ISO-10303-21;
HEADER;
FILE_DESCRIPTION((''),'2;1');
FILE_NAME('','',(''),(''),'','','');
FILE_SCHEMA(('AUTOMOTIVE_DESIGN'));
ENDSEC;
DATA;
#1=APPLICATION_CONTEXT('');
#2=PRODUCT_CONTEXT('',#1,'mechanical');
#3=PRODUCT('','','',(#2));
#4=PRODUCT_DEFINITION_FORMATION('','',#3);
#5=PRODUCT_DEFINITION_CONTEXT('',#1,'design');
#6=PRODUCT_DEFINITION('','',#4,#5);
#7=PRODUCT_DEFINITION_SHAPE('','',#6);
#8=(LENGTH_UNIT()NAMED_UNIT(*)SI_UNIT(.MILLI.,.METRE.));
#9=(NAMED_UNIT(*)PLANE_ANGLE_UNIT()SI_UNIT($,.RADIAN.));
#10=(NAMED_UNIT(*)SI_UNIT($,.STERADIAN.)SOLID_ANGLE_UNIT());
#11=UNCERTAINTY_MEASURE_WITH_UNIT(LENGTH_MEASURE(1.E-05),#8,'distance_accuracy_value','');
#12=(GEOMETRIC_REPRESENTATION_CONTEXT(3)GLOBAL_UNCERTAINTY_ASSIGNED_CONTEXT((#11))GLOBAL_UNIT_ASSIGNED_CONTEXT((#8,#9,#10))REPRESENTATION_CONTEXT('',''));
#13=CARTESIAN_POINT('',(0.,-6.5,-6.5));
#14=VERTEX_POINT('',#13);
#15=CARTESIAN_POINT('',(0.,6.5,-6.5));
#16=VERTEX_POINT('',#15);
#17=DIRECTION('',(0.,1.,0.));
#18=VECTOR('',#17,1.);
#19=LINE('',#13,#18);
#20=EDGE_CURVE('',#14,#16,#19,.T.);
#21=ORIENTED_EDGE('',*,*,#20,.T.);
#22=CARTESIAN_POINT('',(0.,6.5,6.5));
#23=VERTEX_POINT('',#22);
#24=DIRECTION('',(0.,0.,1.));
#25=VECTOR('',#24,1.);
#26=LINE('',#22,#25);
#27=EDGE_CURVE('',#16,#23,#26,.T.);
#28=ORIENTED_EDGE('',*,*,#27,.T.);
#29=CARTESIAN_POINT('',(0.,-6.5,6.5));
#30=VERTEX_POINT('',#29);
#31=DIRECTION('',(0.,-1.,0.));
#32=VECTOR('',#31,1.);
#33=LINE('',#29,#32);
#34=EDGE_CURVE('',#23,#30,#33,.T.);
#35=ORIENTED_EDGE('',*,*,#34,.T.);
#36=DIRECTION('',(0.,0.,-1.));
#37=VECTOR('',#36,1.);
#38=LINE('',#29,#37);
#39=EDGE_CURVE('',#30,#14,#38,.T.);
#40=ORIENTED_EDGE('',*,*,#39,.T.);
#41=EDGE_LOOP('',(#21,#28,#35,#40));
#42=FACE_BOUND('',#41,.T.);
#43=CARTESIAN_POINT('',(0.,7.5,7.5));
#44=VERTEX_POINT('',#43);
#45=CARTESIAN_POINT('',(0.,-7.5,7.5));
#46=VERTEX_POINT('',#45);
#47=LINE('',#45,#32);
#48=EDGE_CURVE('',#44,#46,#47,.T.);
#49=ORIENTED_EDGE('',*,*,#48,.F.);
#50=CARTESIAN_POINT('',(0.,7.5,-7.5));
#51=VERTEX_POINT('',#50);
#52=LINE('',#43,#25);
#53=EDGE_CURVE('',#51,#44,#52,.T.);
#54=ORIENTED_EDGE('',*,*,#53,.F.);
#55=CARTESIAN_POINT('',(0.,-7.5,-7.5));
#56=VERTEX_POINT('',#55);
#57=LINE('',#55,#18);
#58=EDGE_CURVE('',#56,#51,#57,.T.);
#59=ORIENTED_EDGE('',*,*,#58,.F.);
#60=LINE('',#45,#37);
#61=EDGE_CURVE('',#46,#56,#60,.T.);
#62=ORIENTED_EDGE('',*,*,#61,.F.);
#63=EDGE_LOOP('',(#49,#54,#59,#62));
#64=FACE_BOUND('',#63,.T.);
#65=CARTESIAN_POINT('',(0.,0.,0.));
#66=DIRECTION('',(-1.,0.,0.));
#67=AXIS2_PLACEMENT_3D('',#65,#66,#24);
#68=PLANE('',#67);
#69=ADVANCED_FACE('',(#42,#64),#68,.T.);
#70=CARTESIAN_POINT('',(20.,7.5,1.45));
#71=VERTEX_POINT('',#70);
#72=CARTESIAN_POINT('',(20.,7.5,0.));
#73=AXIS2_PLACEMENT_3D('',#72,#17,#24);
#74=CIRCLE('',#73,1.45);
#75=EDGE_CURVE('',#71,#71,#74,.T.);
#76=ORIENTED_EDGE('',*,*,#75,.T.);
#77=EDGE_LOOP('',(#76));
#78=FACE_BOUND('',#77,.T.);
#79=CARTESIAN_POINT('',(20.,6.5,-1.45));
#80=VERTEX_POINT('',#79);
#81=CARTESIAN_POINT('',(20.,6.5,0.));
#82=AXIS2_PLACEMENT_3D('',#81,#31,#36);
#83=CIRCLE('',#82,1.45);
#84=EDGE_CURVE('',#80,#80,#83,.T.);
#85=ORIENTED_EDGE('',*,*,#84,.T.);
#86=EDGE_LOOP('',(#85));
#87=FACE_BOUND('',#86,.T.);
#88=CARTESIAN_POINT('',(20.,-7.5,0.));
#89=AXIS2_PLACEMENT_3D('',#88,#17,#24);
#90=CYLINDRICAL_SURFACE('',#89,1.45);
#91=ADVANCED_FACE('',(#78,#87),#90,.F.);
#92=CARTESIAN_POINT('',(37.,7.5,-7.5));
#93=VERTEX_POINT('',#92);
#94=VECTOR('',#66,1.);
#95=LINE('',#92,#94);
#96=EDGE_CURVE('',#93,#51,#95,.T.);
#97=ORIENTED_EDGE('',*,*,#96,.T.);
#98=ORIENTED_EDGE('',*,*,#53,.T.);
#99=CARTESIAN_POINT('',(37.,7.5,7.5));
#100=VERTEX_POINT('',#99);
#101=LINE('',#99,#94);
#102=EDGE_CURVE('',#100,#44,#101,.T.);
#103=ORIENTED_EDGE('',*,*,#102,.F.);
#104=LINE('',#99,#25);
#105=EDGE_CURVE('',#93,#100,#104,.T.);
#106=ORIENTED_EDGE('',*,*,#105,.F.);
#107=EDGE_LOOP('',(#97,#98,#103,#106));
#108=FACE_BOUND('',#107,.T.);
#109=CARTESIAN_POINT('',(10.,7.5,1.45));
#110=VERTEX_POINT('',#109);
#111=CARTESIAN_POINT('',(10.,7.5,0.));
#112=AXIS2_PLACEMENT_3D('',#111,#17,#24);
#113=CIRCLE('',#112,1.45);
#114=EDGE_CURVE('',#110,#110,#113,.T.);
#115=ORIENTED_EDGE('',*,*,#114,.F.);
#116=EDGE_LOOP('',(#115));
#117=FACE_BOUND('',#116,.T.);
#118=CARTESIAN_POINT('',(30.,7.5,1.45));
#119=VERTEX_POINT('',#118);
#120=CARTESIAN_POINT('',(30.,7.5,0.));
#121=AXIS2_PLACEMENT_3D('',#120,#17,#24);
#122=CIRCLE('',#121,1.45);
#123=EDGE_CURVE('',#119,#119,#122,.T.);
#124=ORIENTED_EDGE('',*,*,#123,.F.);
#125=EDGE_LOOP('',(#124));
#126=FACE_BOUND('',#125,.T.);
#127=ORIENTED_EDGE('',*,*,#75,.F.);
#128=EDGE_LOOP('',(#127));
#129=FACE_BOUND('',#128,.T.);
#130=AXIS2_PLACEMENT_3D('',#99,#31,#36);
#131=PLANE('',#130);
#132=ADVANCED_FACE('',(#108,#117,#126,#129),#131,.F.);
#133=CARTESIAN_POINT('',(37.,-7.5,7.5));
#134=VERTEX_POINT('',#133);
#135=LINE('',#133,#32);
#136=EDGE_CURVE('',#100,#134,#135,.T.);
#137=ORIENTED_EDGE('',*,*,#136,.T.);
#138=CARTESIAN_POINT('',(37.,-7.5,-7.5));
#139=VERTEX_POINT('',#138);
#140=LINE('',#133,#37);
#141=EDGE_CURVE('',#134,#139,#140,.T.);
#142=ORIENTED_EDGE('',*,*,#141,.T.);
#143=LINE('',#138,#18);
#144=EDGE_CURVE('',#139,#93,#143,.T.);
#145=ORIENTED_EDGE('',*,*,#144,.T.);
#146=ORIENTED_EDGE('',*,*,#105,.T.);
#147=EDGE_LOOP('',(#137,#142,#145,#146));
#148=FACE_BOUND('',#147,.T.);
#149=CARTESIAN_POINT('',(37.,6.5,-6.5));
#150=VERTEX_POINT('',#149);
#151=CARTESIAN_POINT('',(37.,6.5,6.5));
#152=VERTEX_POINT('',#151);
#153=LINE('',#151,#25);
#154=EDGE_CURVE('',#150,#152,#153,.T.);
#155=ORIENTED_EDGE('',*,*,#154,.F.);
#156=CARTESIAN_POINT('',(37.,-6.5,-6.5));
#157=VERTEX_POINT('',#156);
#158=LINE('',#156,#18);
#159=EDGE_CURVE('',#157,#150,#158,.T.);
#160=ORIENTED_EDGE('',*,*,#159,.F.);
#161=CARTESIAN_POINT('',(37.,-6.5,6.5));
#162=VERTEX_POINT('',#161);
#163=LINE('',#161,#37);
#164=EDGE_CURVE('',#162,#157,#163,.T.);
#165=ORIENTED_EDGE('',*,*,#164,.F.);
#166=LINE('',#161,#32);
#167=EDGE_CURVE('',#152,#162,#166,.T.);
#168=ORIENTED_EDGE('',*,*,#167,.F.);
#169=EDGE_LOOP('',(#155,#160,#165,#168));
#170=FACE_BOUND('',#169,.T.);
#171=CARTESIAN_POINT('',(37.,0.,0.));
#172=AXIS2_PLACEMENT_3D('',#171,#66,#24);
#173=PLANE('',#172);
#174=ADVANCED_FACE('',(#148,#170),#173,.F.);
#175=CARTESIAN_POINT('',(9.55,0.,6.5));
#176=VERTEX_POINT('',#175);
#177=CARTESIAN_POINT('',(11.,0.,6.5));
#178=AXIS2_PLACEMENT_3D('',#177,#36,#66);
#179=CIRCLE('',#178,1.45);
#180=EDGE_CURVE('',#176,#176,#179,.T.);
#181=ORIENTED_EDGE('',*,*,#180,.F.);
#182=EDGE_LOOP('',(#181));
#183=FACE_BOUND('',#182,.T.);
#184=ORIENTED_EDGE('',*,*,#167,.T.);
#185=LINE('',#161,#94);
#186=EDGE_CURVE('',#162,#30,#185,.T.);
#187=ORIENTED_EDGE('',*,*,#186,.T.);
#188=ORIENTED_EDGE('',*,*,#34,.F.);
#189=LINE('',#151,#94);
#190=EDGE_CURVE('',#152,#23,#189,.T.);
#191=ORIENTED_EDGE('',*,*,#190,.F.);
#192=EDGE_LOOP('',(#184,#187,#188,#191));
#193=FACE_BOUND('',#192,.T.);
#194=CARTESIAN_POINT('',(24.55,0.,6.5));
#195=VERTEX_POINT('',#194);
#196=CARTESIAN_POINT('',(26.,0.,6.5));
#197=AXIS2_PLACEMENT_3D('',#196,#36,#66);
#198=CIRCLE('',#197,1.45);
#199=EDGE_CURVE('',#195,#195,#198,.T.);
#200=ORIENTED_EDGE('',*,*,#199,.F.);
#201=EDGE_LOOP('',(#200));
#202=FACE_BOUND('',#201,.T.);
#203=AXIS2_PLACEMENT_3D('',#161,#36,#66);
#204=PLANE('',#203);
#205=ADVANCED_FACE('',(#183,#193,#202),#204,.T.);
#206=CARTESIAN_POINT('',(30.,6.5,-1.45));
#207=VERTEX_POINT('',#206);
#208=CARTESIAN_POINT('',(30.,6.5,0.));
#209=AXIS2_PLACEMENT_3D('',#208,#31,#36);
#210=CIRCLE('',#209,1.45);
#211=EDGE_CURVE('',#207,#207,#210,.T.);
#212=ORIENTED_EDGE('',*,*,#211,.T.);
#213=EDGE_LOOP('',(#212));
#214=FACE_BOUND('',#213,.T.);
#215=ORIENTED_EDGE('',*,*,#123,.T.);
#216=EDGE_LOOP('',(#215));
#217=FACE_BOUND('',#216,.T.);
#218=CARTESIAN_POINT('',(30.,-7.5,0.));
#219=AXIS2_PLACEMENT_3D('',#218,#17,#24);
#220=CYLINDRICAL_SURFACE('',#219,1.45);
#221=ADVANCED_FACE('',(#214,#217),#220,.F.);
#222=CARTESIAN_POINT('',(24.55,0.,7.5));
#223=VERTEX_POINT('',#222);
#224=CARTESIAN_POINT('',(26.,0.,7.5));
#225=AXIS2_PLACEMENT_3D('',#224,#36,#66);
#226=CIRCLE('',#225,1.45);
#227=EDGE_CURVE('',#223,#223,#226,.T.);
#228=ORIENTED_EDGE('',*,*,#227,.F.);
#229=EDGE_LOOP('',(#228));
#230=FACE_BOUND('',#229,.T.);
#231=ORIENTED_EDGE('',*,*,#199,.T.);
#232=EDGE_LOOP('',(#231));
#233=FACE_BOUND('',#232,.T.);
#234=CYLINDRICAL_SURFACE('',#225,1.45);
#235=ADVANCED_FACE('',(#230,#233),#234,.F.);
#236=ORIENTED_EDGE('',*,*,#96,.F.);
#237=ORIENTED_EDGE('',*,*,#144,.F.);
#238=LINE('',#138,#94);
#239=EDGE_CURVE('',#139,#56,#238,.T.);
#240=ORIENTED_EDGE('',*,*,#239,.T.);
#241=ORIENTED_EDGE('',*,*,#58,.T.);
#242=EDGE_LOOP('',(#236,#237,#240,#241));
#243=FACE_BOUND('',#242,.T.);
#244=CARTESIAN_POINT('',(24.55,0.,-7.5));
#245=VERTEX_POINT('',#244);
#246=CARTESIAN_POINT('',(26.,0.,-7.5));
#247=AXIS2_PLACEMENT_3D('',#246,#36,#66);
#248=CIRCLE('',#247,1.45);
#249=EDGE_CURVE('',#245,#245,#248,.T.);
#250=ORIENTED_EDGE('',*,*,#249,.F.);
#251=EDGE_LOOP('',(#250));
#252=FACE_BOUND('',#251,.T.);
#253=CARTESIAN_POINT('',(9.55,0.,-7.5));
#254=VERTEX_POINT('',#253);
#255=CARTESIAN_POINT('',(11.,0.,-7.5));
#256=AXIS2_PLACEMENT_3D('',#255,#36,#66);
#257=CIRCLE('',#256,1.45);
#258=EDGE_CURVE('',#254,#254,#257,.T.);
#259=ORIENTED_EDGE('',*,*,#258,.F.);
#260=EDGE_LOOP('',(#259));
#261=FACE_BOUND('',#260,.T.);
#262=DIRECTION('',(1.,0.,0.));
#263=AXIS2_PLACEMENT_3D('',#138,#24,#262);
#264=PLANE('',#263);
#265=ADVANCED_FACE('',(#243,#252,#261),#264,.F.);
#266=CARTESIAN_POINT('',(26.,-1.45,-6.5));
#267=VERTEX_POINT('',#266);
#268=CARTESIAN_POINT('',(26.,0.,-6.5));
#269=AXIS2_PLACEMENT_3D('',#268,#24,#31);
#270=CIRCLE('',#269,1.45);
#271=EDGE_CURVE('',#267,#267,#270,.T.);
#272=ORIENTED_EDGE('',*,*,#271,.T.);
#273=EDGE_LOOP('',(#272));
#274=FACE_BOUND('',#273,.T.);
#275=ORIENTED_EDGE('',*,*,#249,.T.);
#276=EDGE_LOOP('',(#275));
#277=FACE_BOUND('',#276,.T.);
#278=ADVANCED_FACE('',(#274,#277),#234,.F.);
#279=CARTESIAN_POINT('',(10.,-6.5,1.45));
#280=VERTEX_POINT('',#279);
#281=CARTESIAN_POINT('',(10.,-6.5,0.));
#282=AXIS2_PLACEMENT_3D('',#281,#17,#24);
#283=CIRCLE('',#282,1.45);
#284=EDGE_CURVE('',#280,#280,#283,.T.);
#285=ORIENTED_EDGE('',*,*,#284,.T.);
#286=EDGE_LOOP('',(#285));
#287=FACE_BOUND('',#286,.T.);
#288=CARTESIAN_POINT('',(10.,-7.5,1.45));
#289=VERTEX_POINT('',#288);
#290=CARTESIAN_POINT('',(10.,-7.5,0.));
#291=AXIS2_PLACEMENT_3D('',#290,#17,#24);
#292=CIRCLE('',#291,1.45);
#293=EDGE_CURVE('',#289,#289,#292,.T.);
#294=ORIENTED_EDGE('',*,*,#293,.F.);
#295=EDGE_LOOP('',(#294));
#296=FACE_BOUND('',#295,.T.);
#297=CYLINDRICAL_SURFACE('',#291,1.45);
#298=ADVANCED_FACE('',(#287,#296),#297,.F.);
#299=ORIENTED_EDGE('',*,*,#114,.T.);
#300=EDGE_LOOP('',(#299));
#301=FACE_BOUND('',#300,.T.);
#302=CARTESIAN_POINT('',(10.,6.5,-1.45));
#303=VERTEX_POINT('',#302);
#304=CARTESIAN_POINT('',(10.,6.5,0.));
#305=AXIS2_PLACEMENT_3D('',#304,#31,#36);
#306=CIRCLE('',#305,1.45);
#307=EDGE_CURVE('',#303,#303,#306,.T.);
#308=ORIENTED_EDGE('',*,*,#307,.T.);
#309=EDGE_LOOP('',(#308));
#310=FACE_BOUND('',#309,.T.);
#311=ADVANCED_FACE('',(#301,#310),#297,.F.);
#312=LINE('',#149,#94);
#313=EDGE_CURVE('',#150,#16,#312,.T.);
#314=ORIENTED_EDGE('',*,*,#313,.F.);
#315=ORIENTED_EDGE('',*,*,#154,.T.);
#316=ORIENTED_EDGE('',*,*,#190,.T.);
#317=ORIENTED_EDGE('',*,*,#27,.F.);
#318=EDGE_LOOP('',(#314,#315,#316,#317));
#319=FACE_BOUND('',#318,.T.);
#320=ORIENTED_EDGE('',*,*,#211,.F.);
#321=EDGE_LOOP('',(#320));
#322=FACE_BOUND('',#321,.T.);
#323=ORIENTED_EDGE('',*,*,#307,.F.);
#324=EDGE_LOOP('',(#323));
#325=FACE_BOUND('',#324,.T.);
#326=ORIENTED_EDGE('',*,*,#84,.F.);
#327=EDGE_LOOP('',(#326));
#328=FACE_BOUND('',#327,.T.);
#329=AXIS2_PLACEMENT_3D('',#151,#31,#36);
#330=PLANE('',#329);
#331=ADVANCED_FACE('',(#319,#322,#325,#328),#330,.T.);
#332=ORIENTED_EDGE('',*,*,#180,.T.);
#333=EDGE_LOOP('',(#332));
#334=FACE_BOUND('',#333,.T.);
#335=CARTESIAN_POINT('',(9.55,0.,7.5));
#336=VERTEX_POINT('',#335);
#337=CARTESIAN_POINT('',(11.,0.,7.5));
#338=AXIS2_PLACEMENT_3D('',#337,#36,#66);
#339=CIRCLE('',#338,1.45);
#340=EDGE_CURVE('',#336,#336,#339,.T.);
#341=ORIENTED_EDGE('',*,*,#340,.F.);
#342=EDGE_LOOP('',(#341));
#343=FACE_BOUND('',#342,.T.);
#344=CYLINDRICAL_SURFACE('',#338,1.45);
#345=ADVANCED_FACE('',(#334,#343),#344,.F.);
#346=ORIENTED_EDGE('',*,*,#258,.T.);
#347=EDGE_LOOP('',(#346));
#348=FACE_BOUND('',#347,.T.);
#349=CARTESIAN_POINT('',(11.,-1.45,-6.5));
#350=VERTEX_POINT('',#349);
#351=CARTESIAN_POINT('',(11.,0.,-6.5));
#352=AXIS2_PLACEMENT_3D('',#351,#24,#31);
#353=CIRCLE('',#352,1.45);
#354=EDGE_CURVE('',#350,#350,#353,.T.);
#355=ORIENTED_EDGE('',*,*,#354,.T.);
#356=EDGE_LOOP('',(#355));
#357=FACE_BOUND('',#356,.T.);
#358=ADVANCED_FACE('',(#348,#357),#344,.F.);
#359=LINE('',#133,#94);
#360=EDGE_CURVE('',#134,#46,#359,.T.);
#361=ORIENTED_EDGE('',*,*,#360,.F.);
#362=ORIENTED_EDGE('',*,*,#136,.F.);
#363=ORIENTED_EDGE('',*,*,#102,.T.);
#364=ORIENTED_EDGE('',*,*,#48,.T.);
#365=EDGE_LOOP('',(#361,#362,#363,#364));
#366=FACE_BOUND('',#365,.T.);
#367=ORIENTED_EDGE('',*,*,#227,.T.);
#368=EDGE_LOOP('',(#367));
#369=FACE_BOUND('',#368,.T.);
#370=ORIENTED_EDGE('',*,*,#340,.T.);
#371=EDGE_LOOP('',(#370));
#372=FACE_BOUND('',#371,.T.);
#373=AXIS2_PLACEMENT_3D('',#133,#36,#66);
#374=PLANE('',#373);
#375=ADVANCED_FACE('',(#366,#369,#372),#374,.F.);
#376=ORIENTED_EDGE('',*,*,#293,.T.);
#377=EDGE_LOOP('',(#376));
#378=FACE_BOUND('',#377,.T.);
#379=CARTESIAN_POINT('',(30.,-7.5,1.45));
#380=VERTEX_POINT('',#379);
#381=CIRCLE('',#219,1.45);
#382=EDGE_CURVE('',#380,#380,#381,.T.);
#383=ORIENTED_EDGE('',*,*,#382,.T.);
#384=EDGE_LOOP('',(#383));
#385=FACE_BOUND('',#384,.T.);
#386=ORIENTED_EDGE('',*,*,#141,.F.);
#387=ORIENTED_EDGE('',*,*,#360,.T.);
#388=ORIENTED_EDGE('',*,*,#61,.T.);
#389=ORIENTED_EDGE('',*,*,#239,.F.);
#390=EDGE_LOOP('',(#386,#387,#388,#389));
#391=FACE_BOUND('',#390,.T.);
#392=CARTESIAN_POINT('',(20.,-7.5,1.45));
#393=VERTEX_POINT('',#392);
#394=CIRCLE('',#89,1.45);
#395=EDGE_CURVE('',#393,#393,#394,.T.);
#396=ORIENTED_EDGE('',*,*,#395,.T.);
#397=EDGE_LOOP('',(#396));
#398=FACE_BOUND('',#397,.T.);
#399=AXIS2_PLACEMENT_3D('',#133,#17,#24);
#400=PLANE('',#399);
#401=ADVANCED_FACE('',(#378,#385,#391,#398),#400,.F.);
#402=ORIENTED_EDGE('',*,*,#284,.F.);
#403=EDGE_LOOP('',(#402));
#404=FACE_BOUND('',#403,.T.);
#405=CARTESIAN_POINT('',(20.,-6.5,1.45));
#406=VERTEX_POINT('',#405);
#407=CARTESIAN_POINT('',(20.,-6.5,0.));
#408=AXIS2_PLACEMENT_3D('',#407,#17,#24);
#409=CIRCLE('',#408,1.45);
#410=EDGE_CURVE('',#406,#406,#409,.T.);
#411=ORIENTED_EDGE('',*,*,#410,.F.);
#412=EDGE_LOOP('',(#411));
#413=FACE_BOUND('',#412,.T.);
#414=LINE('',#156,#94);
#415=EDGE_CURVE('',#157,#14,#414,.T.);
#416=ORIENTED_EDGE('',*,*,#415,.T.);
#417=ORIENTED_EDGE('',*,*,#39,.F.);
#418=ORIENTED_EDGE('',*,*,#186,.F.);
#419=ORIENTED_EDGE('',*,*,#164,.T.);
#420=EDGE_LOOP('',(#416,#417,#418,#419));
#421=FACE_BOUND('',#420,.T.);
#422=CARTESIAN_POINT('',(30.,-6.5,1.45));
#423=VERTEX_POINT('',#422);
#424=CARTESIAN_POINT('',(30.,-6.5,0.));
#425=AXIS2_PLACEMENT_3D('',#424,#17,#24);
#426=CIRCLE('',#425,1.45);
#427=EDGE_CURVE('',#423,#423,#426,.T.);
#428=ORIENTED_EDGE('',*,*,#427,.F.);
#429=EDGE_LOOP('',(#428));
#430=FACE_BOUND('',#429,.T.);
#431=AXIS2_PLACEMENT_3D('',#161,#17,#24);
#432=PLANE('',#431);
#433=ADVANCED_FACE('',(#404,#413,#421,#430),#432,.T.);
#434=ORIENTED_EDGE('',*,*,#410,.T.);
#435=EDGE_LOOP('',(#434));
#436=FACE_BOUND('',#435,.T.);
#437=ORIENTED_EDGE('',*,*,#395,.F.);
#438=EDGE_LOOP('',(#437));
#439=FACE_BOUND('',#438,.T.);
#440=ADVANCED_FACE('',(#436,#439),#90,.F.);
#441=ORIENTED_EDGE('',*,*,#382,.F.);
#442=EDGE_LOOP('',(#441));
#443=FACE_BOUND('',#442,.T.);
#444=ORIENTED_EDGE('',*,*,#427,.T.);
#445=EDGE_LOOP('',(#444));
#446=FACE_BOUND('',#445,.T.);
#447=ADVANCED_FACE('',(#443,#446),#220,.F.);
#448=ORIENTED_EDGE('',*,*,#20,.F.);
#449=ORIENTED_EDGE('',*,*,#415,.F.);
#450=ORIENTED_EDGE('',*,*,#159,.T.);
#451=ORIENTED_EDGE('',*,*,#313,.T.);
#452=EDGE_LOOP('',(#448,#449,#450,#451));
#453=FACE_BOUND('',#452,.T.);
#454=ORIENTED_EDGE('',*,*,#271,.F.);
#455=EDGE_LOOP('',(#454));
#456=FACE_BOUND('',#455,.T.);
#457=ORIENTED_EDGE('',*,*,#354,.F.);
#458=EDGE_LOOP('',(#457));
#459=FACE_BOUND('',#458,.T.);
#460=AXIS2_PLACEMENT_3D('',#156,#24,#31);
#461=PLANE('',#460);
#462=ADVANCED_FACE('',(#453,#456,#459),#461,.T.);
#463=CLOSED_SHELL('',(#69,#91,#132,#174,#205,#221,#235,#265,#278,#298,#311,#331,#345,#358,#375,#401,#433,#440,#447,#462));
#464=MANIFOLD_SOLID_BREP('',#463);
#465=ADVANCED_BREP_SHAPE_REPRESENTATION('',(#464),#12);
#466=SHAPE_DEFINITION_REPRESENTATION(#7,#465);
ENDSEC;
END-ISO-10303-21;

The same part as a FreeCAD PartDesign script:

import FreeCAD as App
import Part
import Sketcher


def add_polygon(sketch, points):
    """Adds a closed chain of lines whose ends are joined by coincident constraints."""
    first, n = sketch.GeometryCount, len(points)
    for a, b in zip(points, points[1:] + points[:1]):
        sketch.addGeometry(Part.LineSegment(App.Vector(*a, 0), App.Vector(*b, 0)), False)
    for i in range(n):
        sketch.addConstraint(Sketcher.Constraint("Coincident", first + i, 2, first + (i + 1) % n, 1))

doc = App.newDocument("Part")
params = doc.addObject("Spreadsheet::Sheet", "Params")
for row, (alias, value) in enumerate([
    ("sketch1_width", "15 mm"),
    ("sketch1_width2", "13 mm"),
    ("pad1_length", "37 mm"),
    ("sketch2_diameter", "2.9 mm"),
    ("sketch3_diameter", "2.9 mm"),
], start=1):
    params.set(f"A{row}", alias)
    params.set(f"B{row}", "=" + value)
    params.setAlias(f"B{row}", alias)

body = doc.addObject("PartDesign::Body", "Body")

sketch1 = doc.addObject("Sketcher::SketchObject", "Sketch")
body.addObject(sketch1)
sketch1.AttachmentSupport = (doc.YZ_Plane, [""])
sketch1.MapMode = "FlatFace"
add_polygon(sketch1, [(8, 8), (-8, 8), (-8, -8), (8, -8)])
add_polygon(sketch1, [(-6, -6), (-6, 6), (6, 6), (6, -6)])
sketch1.addConstraint(Sketcher.Constraint("Horizontal", 0))
sketch1.addConstraint(Sketcher.Constraint("Vertical", 1))
sketch1.addConstraint(Sketcher.Constraint("Horizontal", 2))
sketch1.addConstraint(Sketcher.Constraint("Vertical", 3))
sketch1.addConstraint(Sketcher.Constraint("Vertical", 4))
sketch1.addConstraint(Sketcher.Constraint("Horizontal", 5))
sketch1.addConstraint(Sketcher.Constraint("Vertical", 6))
sketch1.addConstraint(Sketcher.Constraint("Horizontal", 7))
sketch1.addConstraint(Sketcher.Constraint("Symmetric", 0, 2, 2, 2, -1, 1))
sketch1.addConstraint(Sketcher.Constraint("Symmetric", 4, 2, 6, 2, -1, 1))
sketch1.addConstraint(Sketcher.Constraint("Equal", 2, 1))
sketch1.addConstraint(Sketcher.Constraint("Equal", 7, 4))
sketch1.addConstraint(Sketcher.Constraint("DistanceX", 0, 2, 0, 1, 15.0))
sketch1.addConstraint(Sketcher.Constraint("DistanceX", 5, 1, 5, 2, 13.0))
sketch1.setExpression("Constraints[20]", "Params.sketch1_width")
sketch1.setExpression("Constraints[21]", "Params.sketch1_width2")
pad1 = doc.addObject("PartDesign::Pad", "Pad")
body.addObject(pad1)
pad1.Profile = sketch1
pad1.setExpression("Length", "Params.pad1_length")

sketch2 = doc.addObject("Sketcher::SketchObject", "Sketch001")
body.addObject(sketch2)
sketch2.AttachmentSupport = (doc.XY_Plane, [""])
sketch2.MapMode = "FlatFace"
sketch2.AttachmentOffset = App.Placement(App.Vector(0, 0, -7.5), App.Rotation())
sketch2.addGeometry(Part.Circle(App.Vector(11, 0, 0), App.Vector(0, 0, 1), 1.4), False)
sketch2.addGeometry(Part.Circle(App.Vector(26, 0, 0), App.Vector(0, 0, 1), 1.4), False)
sketch2.addConstraint(Sketcher.Constraint("Equal", 0, 1))
sketch2.addConstraint(Sketcher.Constraint("PointOnObject", 0, 3, -1))
sketch2.addConstraint(Sketcher.Constraint("PointOnObject", 1, 3, -1))
sketch2.addConstraint(Sketcher.Constraint("Diameter", 0, 2.9))
sketch2.addConstraint(Sketcher.Constraint("DistanceX", -1, 1, 0, 3, 11.0))
sketch2.addConstraint(Sketcher.Constraint("DistanceX", -1, 1, 1, 3, 26.0))
sketch2.setExpression("Constraints[3]", "Params.sketch2_diameter")
pocket1 = doc.addObject("PartDesign::Pocket", "Pocket")
body.addObject(pocket1)
pocket1.Profile = sketch2
pocket1.Type = "ThroughAll"
pocket1.Reversed = True

sketch3 = doc.addObject("Sketcher::SketchObject", "Sketch002")
body.addObject(sketch3)
sketch3.AttachmentSupport = (doc.XZ_Plane, [""])
sketch3.MapMode = "FlatFace"
sketch3.AttachmentOffset = App.Placement(App.Vector(0, 0, -7.5), App.Rotation())
sketch3.addGeometry(Part.Circle(App.Vector(10, 0, 0), App.Vector(0, 0, 1), 1.4), False)
sketch3.addGeometry(Part.Circle(App.Vector(30, 0, 0), App.Vector(0, 0, 1), 1.4), False)
sketch3.addGeometry(Part.Circle(App.Vector(20, 0, 0), App.Vector(0, 0, 1), 1.4), False)
sketch3.addConstraint(Sketcher.Constraint("Equal", 0, 1))
sketch3.addConstraint(Sketcher.Constraint("Equal", 1, 2))
sketch3.addConstraint(Sketcher.Constraint("PointOnObject", 0, 3, -1))
sketch3.addConstraint(Sketcher.Constraint("PointOnObject", 1, 3, -1))
sketch3.addConstraint(Sketcher.Constraint("PointOnObject", 2, 3, -1))
sketch3.addConstraint(Sketcher.Constraint("Diameter", 0, 2.9))
sketch3.addConstraint(Sketcher.Constraint("DistanceX", -1, 1, 0, 3, 10.0))
sketch3.addConstraint(Sketcher.Constraint("DistanceX", -1, 1, 1, 3, 30.0))
sketch3.addConstraint(Sketcher.Constraint("DistanceX", -1, 1, 2, 3, 20.0))
sketch3.setExpression("Constraints[5]", "Params.sketch3_diameter")
pocket2 = doc.addObject("PartDesign::Pocket", "Pocket001")
body.addObject(pocket2)
pocket2.Profile = sketch3
pocket2.Type = "ThroughAll"
pocket2.Reversed = True

doc.recompute()
